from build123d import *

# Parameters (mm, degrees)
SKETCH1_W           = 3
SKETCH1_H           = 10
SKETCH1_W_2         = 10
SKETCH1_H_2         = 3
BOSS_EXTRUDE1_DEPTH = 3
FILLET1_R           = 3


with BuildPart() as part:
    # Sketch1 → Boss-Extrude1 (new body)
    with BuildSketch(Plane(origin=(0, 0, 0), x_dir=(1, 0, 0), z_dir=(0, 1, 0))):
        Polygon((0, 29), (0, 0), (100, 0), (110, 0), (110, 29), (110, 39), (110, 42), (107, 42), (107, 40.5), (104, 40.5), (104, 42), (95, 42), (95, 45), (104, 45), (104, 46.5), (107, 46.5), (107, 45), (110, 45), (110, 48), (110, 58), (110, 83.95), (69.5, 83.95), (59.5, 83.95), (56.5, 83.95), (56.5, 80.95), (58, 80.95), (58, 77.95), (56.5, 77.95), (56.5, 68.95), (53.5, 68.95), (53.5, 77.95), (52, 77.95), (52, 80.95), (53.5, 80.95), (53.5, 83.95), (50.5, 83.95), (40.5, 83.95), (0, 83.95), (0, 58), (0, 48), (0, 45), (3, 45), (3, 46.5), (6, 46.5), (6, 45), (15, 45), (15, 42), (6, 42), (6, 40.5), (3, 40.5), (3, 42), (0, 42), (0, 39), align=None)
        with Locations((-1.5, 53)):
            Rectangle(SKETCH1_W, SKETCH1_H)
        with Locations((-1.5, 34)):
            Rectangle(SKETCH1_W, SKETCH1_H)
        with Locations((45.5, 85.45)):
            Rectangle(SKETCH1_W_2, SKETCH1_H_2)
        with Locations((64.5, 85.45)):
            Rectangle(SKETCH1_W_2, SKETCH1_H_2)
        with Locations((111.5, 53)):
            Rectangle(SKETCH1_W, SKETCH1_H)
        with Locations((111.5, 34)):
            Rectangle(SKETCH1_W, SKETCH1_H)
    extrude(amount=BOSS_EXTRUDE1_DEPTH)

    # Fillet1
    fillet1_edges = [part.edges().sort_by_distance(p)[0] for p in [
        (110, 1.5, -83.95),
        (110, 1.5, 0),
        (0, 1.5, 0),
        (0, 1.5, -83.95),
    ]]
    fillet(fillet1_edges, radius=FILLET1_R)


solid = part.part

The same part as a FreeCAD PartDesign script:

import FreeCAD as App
import Part
import Sketcher

V = App.Vector
Q = App.Units.Quantity


def edges_at(feature, points):
    """Names of the edges that pass closest to the given points."""
    edges = feature.Shape.Edges
    near = lambda p: min(range(len(edges)), key=lambda i: edges[i].distToShape(Part.Vertex(*p))[0])
    return sorted({f"Edge{near(p) + 1}" for p in points})

doc = App.newDocument("Part")
body = doc.addObject("PartDesign::Body", "Body")

sketch1 = body.newObject("Sketcher::SketchObject", "Sketch")
sketch1.AttachmentSupport = (doc.getObject("XZ_Plane"), [""])
sketch1.MapMode = "FlatFace"
sketch1.addGeometry(Part.LineSegment(V(0, 0, 0), V(110, 0, 0)), False)
sketch1.addGeometry(Part.LineSegment(V(110, 0, 0), V(110, -29, 0)), False)
sketch1.addGeometry(Part.LineSegment(V(110, -29, 0), V(113, -29, 0)), False)
sketch1.addGeometry(Part.LineSegment(V(113, -29, 0), V(113, -39, 0)), False)
sketch1.addGeometry(Part.LineSegment(V(113, -39, 0), V(110, -39, 0)), False)
sketch1.addGeometry(Part.LineSegment(V(110, -39, 0), V(110, -42, 0)), False)
sketch1.addGeometry(Part.LineSegment(V(110, -42, 0), V(107, -42, 0)), False)
sketch1.addGeometry(Part.LineSegment(V(107, -42, 0), V(107, -40.5, 0)), False)
sketch1.addGeometry(Part.LineSegment(V(107, -40.5, 0), V(104, -40.5, 0)), False)
sketch1.addGeometry(Part.LineSegment(V(104, -40.5, 0), V(104, -42, 0)), False)
sketch1.addGeometry(Part.LineSegment(V(104, -42, 0), V(95, -42, 0)), False)
sketch1.addGeometry(Part.LineSegment(V(95, -42, 0), V(95, -45, 0)), False)
sketch1.addGeometry(Part.LineSegment(V(95, -45, 0), V(104, -45, 0)), False)
sketch1.addGeometry(Part.LineSegment(V(104, -45, 0), V(104, -46.5, 0)), False)
sketch1.addGeometry(Part.LineSegment(V(104, -46.5, 0), V(107, -46.5, 0)), False)
sketch1.addGeometry(Part.LineSegment(V(107, -46.5, 0), V(107, -45, 0)), False)
sketch1.addGeometry(Part.LineSegment(V(107, -45, 0), V(110, -45, 0)), False)
sketch1.addGeometry(Part.LineSegment(V(110, -45, 0), V(110, -48, 0)), False)
sketch1.addGeometry(Part.LineSegment(V(110, -48, 0), V(113, -48, 0)), False)
sketch1.addGeometry(Part.LineSegment(V(113, -48, 0), V(113, -58, 0)), False)
sketch1.addGeometry(Part.LineSegment(V(113, -58, 0), V(110, -58, 0)), False)
sketch1.addGeometry(Part.LineSegment(V(110, -58, 0), V(110, -84, 0)), False)
sketch1.addGeometry(Part.LineSegment(V(110, -84, 0), V(69.5, -84, 0)), False)
sketch1.addGeometry(Part.LineSegment(V(69.5, -84, 0), V(69.5, -87, 0)), False)
sketch1.addGeometry(Part.LineSegment(V(69.5, -87, 0), V(59.5, -87, 0)), False)
sketch1.addGeometry(Part.LineSegment(V(59.5, -87, 0), V(59.5, -84, 0)), False)
sketch1.addGeometry(Part.LineSegment(V(59.5, -84, 0), V(56.5, -84, 0)), False)
sketch1.addGeometry(Part.LineSegment(V(56.5, -84, 0), V(56.5, -81, 0)), False)
sketch1.addGeometry(Part.LineSegment(V(56.5, -81, 0), V(58, -81, 0)), False)
sketch1.addGeometry(Part.LineSegment(V(58, -81, 0), V(58, -78, 0)), False)
sketch1.addGeometry(Part.LineSegment(V(58, -78, 0), V(56.5, -78, 0)), False)
sketch1.addGeometry(Part.LineSegment(V(56.5, -78, 0), V(56.5, -69, 0)), False)
sketch1.addGeometry(Part.LineSegment(V(56.5, -69, 0), V(53.5, -69, 0)), False)
sketch1.addGeometry(Part.LineSegment(V(53.5, -69, 0), V(53.5, -78, 0)), False)
sketch1.addGeometry(Part.LineSegment(V(53.5, -78, 0), V(52, -78, 0)), False)
sketch1.addGeometry(Part.LineSegment(V(52, -78, 0), V(52, -81, 0)), False)
sketch1.addGeometry(Part.LineSegment(V(52, -81, 0), V(53.5, -81, 0)), False)
sketch1.addGeometry(Part.LineSegment(V(53.5, -81, 0), V(53.5, -84, 0)), False)
sketch1.addGeometry(Part.LineSegment(V(53.5, -84, 0), V(50.5, -84, 0)), False)
sketch1.addGeometry(Part.LineSegment(V(50.5, -84, 0), V(50.5, -87, 0)), False)
sketch1.addGeometry(Part.LineSegment(V(50.5, -87, 0), V(40.5, -87, 0)), False)
sketch1.addGeometry(Part.LineSegment(V(40.5, -87, 0), V(40.5, -84, 0)), False)
sketch1.addGeometry(Part.LineSegment(V(40.5, -84, 0), V(0, -84, 0)), False)
sketch1.addGeometry(Part.LineSegment(V(0, -84, 0), V(0, -58, 0)), False)
sketch1.addGeometry(Part.LineSegment(V(0, -58, 0), V(-3, -58, 0)), False)
sketch1.addGeometry(Part.LineSegment(V(-3, -58, 0), V(-3, -48, 0)), False)
sketch1.addGeometry(Part.LineSegment(V(-3, -48, 0), V(0, -48, 0)), False)
sketch1.addGeometry(Part.LineSegment(V(0, -48, 0), V(0, -45, 0)), False)
sketch1.addGeometry(Part.LineSegment(V(0, -45, 0), V(3, -45, 0)), False)
sketch1.addGeometry(Part.LineSegment(V(3, -45, 0), V(3, -46.5, 0)), False)
sketch1.addGeometry(Part.LineSegment(V(3, -46.5, 0), V(6, -46.5, 0)), False)
sketch1.addGeometry(Part.LineSegment(V(6, -46.5, 0), V(6, -45, 0)), False)
sketch1.addGeometry(Part.LineSegment(V(6, -45, 0), V(15, -45, 0)), False)
sketch1.addGeometry(Part.LineSegment(V(15, -45, 0), V(15, -42, 0)), False)
sketch1.addGeometry(Part.LineSegment(V(15, -42, 0), V(6, -42, 0)), False)
sketch1.addGeometry(Part.LineSegment(V(6, -42, 0), V(6, -40.5, 0)), False)
sketch1.addGeometry(Part.LineSegment(V(6, -40.5, 0), V(3, -40.5, 0)), False)
sketch1.addGeometry(Part.LineSegment(V(3, -40.5, 0), V(3, -42, 0)), False)
sketch1.addGeometry(Part.LineSegment(V(3, -42, 0), V(0, -42, 0)), False)
sketch1.addGeometry(Part.LineSegment(V(0, -42, 0), V(0, -39, 0)), False)
sketch1.addGeometry(Part.LineSegment(V(0, -39, 0), V(-3, -39, 0)), False)
sketch1.addGeometry(Part.LineSegment(V(-3, -39, 0), V(-3, -29, 0)), False)
sketch1.addGeometry(Part.LineSegment(V(-3, -29, 0), V(0, -29, 0)), False)
sketch1.addGeometry(Part.LineSegment(V(0, -29, 0), V(0, 0, 0)), False)
sketch1.addConstraint(Sketcher.Constraint("Coincident", 0, 2, 1, 1))
sketch1.addConstraint(Sketcher.Constraint("Coincident", 1, 2, 2, 1))
sketch1.addConstraint(Sketcher.Constraint("Coincident", 2, 2, 3, 1))
sketch1.addConstraint(Sketcher.Constraint("Coincident", 3, 2, 4, 1))
sketch1.addConstraint(Sketcher.Constraint("Coincident", 4, 2, 5, 1))
sketch1.addConstraint(Sketcher.Constraint("Coincident", 5, 2, 6, 1))
sketch1.addConstraint(Sketcher.Constraint("Coincident", 6, 2, 7, 1))
sketch1.addConstraint(Sketcher.Constraint("Coincident", 7, 2, 8, 1))
sketch1.addConstraint(Sketcher.Constraint("Coincident", 8, 2, 9, 1))
sketch1.addConstraint(Sketcher.Constraint("Coincident", 9, 2, 10, 1))
sketch1.addConstraint(Sketcher.Constraint("Coincident", 10, 2, 11, 1))
sketch1.addConstraint(Sketcher.Constraint("Coincident", 11, 2, 12, 1))
sketch1.addConstraint(Sketcher.Constraint("Coincident", 12, 2, 13, 1))
sketch1.addConstraint(Sketcher.Constraint("Coincident", 13, 2, 14, 1))
sketch1.addConstraint(Sketcher.Constraint("Coincident", 14, 2, 15, 1))
sketch1.addConstraint(Sketcher.Constraint("Coincident", 15, 2, 16, 1))
sketch1.addConstraint(Sketcher.Constraint("Coincident", 16, 2, 17, 1))
sketch1.addConstraint(Sketcher.Constraint("Coincident", 17, 2, 18, 1))
sketch1.addConstraint(Sketcher.Constraint("Coincident", 18, 2, 19, 1))
sketch1.addConstraint(Sketcher.Constraint("Coincident", 19, 2, 20, 1))
sketch1.addConstraint(Sketcher.Constraint("Coincident", 20, 2, 21, 1))
sketch1.addConstraint(Sketcher.Constraint("Coincident", 21, 2, 22, 1))
sketch1.addConstraint(Sketcher.Constraint("Coincident", 22, 2, 23, 1))
sketch1.addConstraint(Sketcher.Constraint("Coincident", 23, 2, 24, 1))
sketch1.addConstraint(Sketcher.Constraint("Coincident", 24, 2, 25, 1))
sketch1.addConstraint(Sketcher.Constraint("Coincident", 25, 2, 26, 1))
sketch1.addConstraint(Sketcher.Constraint("Coincident", 26, 2, 27, 1))
sketch1.addConstraint(Sketcher.Constraint("Coincident", 27, 2, 28, 1))
sketch1.addConstraint(Sketcher.Constraint("Coincident", 28, 2, 29, 1))
sketch1.addConstraint(Sketcher.Constraint("Coincident", 29, 2, 30, 1))
sketch1.addConstraint(Sketcher.Constraint("Coincident", 30, 2, 31, 1))
sketch1.addConstraint(Sketcher.Constraint("Coincident", 31, 2, 32, 1))
sketch1.addConstraint(Sketcher.Constraint("Coincident", 32, 2, 33, 1))
sketch1.addConstraint(Sketcher.Constraint("Coincident", 33, 2, 34, 1))
sketch1.addConstraint(Sketcher.Constraint("Coincident", 34, 2, 35, 1))
sketch1.addConstraint(Sketcher.Constraint("Coincident", 35, 2, 36, 1))
sketch1.addConstraint(Sketcher.Constraint("Coincident", 36, 2, 37, 1))
sketch1.addConstraint(Sketcher.Constraint("Coincident", 37, 2, 38, 1))
sketch1.addConstraint(Sketcher.Constraint("Coincident", 38, 2, 39, 1))
sketch1.addConstraint(Sketcher.Constraint("Coincident", 39, 2, 40, 1))
sketch1.addConstraint(Sketcher.Constraint("Coincident", 40, 2, 41, 1))
sketch1.addConstraint(Sketcher.Constraint("Coincident", 41, 2, 42, 1))
sketch1.addConstraint(Sketcher.Constraint("Coincident", 42, 2, 43, 1))
sketch1.addConstraint(Sketcher.Constraint("Coincident", 43, 2, 44, 1))
sketch1.addConstraint(Sketcher.Constraint("Coincident", 44, 2, 45, 1))
sketch1.addConstraint(Sketcher.Constraint("Coincident", 45, 2, 46, 1))
sketch1.addConstraint(Sketcher.Constraint("Coincident", 46, 2, 47, 1))
sketch1.addConstraint(Sketcher.Constraint("Coincident", 47, 2, 48, 1))
sketch1.addConstraint(Sketcher.Constraint("Coincident", 48, 2, 49, 1))
sketch1.addConstraint(Sketcher.Constraint("Coincident", 49, 2, 50, 1))
sketch1.addConstraint(Sketcher.Constraint("Coincident", 50, 2, 51, 1))
sketch1.addConstraint(Sketcher.Constraint("Coincident", 51, 2, 52, 1))
sketch1.addConstraint(Sketcher.Constraint("Coincident", 52, 2, 53, 1))
sketch1.addConstraint(Sketcher.Constraint("Coincident", 53, 2, 54, 1))
sketch1.addConstraint(Sketcher.Constraint("Coincident", 54, 2, 55, 1))
sketch1.addConstraint(Sketcher.Constraint("Coincident", 55, 2, 56, 1))
sketch1.addConstraint(Sketcher.Constraint("Coincident", 56, 2, 57, 1))
sketch1.addConstraint(Sketcher.Constraint("Coincident", 57, 2, 58, 1))
sketch1.addConstraint(Sketcher.Constraint("Coincident", 58, 2, 59, 1))
sketch1.addConstraint(Sketcher.Constraint("Coincident", 59, 2, 60, 1))
sketch1.addConstraint(Sketcher.Constraint("Coincident", 60, 2, 61, 1))
sketch1.addConstraint(Sketcher.Constraint("Coincident", 61, 2, 62, 1))
sketch1.addConstraint(Sketcher.Constraint("Coincident", 62, 2, 63, 1))
sketch1.addConstraint(Sketcher.Constraint("Coincident", 63, 2, 0, 1))
sketch1.addConstraint(Sketcher.Constraint("Horizontal", 0))
sketch1.addConstraint(Sketcher.Constraint("Vertical", 1))
sketch1.addConstraint(Sketcher.Constraint("Horizontal", 2))
sketch1.addConstraint(Sketcher.Constraint("Vertical", 3))
sketch1.addConstraint(Sketcher.Constraint("Horizontal", 4))
sketch1.addConstraint(Sketcher.Constraint("Vertical", 5))
sketch1.addConstraint(Sketcher.Constraint("Horizontal", 6))
sketch1.addConstraint(Sketcher.Constraint("Vertical", 7))
sketch1.addConstraint(Sketcher.Constraint("Horizontal", 8))
sketch1.addConstraint(Sketcher.Constraint("Vertical", 9))
sketch1.addConstraint(Sketcher.Constraint("Horizontal", 10))
sketch1.addConstraint(Sketcher.Constraint("Vertical", 11))
sketch1.addConstraint(Sketcher.Constraint("Horizontal", 12))
sketch1.addConstraint(Sketcher.Constraint("Vertical", 13))
sketch1.addConstraint(Sketcher.Constraint("Horizontal", 14))
sketch1.addConstraint(Sketcher.Constraint("Vertical", 15))
sketch1.addConstraint(Sketcher.Constraint("Horizontal", 16))
sketch1.addConstraint(Sketcher.Constraint("Vertical", 17))
sketch1.addConstraint(Sketcher.Constraint("Horizontal", 18))
sketch1.addConstraint(Sketcher.Constraint("Vertical", 19))
sketch1.addConstraint(Sketcher.Constraint("Horizontal", 20))
sketch1.addConstraint(Sketcher.Constraint("Vertical", 21))
sketch1.addConstraint(Sketcher.Constraint("Horizontal", 22))
sketch1.addConstraint(Sketcher.Constraint("Vertical", 23))
sketch1.addConstraint(Sketcher.Constraint("Horizontal", 24))
sketch1.addConstraint(Sketcher.Constraint("Vertical", 25))
sketch1.addConstraint(Sketcher.Constraint("Horizontal", 26))
sketch1.addConstraint(Sketcher.Constraint("Vertical", 27))
sketch1.addConstraint(Sketcher.Constraint("Horizontal", 28))
sketch1.addConstraint(Sketcher.Constraint("Vertical", 29))
sketch1.addConstraint(Sketcher.Constraint("Horizontal", 30))
sketch1.addConstraint(Sketcher.Constraint("Vertical", 31))
sketch1.addConstraint(Sketcher.Constraint("Horizontal", 32))
sketch1.addConstraint(Sketcher.Constraint("Vertical", 33))
sketch1.addConstraint(Sketcher.Constraint("Horizontal", 34))
sketch1.addConstraint(Sketcher.Constraint("Vertical", 35))
sketch1.addConstraint(Sketcher.Constraint("Horizontal", 36))
sketch1.addConstraint(Sketcher.Constraint("Vertical", 37))
sketch1.addConstraint(Sketcher.Constraint("Horizontal", 38))
sketch1.addConstraint(Sketcher.Constraint("Vertical", 39))
sketch1.addConstraint(Sketcher.Constraint("Horizontal", 40))
sketch1.addConstraint(Sketcher.Constraint("Vertical", 41))
sketch1.addConstraint(Sketcher.Constraint("Horizontal", 42))
sketch1.addConstraint(Sketcher.Constraint("Vertical", 43))
sketch1.addConstraint(Sketcher.Constraint("Horizontal", 44))
sketch1.addConstraint(Sketcher.Constraint("Vertical", 45))
sketch1.addConstraint(Sketcher.Constraint("Horizontal", 46))
sketch1.addConstraint(Sketcher.Constraint("Vertical", 47))
sketch1.addConstraint(Sketcher.Constraint("Horizontal", 48))
sketch1.addConstraint(Sketcher.Constraint("Vertical", 49))
sketch1.addConstraint(Sketcher.Constraint("Horizontal", 50))
sketch1.addConstraint(Sketcher.Constraint("Vertical", 51))
sketch1.addConstraint(Sketcher.Constraint("Horizontal", 52))
sketch1.addConstraint(Sketcher.Constraint("Vertical", 53))
sketch1.addConstraint(Sketcher.Constraint("Horizontal", 54))
sketch1.addConstraint(Sketcher.Constraint("Vertical", 55))
sketch1.addConstraint(Sketcher.Constraint("Horizontal", 56))
sketch1.addConstraint(Sketcher.Constraint("Vertical", 57))
sketch1.addConstraint(Sketcher.Constraint("Horizontal", 58))
sketch1.addConstraint(Sketcher.Constraint("Vertical", 59))
sketch1.addConstraint(Sketcher.Constraint("Horizontal", 60))
sketch1.addConstraint(Sketcher.Constraint("Vertical", 61))
sketch1.addConstraint(Sketcher.Constraint("Horizontal", 62))
sketch1.addConstraint(Sketcher.Constraint("Vertical", 63))
sketch1.addConstraint(Sketcher.Constraint("Coincident", 63, 2, -1, 1))
sketch1.addConstraint(Sketcher.Constraint("PointOnObject", 42, 2, -2))
sketch1.addConstraint(Sketcher.Constraint("PointOnObject", 46, 2, -2))
sketch1.addConstraint(Sketcher.Constraint("PointOnObject", 58, 2, -2))
sketch1.addConstraint(Sketcher.Constraint("Horizontal", 6, 2, 9, 2))
sketch1.addConstraint(Sketcher.Constraint("Horizontal", 12, 2, 15, 2))
sketch1.addConstraint(Sketcher.Constraint("Horizontal", 22, 2, 25, 2))
sketch1.addConstraint(Sketcher.Constraint("Horizontal", 30, 2, 33, 2))
sketch1.addConstraint(Sketcher.Constraint("Horizontal", 28, 2, 35, 2))
sketch1.addConstraint(Sketcher.Constraint("Horizontal", 26, 2, 37, 2))
sketch1.addConstraint(Sketcher.Constraint("Horizontal", 24, 2, 39, 2))
sketch1.addConstraint(Sketcher.Constraint("Horizontal", 38, 2, 41, 2))
sketch1.addConstraint(Sketcher.Constraint("Horizontal", 20, 2, 43, 2))
sketch1.addConstraint(Sketcher.Constraint("Horizontal", 18, 2, 45, 2))
sketch1.addConstraint(Sketcher.Constraint("Horizontal", 16, 2, 47, 2))
sketch1.addConstraint(Sketcher.Constraint("Horizontal", 14, 2, 49, 2))
sketch1.addConstraint(Sketcher.Constraint("Horizontal", 48, 2, 51, 2))
sketch1.addConstraint(Sketcher.Constraint("Horizontal", 10, 2, 53, 2))
sketch1.addConstraint(Sketcher.Constraint("Horizontal", 8, 2, 55, 2))
sketch1.addConstraint(Sketcher.Constraint("Horizontal", 54, 2, 57, 2))
sketch1.addConstraint(Sketcher.Constraint("Horizontal", 4, 2, 59, 2))
sketch1.addConstraint(Sketcher.Constraint("Horizontal", 2, 2, 61, 2))
sketch1.addConstraint(Sketcher.Constraint("Vertical", 1, 2, 4, 2))
sketch1.addConstraint(Sketcher.Constraint("Vertical", 9, 2, 12, 2))
sketch1.addConstraint(Sketcher.Constraint("Vertical", 7, 2, 14, 2))
sketch1.addConstraint(Sketcher.Constraint("Vertical", 5, 2, 16, 2))
sketch1.addConstraint(Sketcher.Constraint("Vertical", 3, 2, 18, 2))
sketch1.addConstraint(Sketcher.Constraint("Vertical", 17, 2, 20, 2))
sketch1.addConstraint(Sketcher.Constraint("Vertical", 27, 2, 30, 2))
sketch1.addConstraint(Sketcher.Constraint("Vertical", 33, 2, 36, 2))
sketch1.addConstraint(Sketcher.Constraint("Vertical", 51, 2, 54, 2))
sketch1.addConstraint(Sketcher.Constraint("Vertical", 49, 2, 56, 2))
sketch1.addConstraint(Sketcher.Constraint("Vertical", 45, 2, 60, 2))
sketch1.addConstraint(Sketcher.Constraint("Equal", 4, 6))
sketch1.addConstraint(Sketcher.Constraint("Equal", 6, 8))
sketch1.addConstraint(Sketcher.Constraint("Equal", 20, 26))
sketch1.addConstraint(Sketcher.Constraint("Equal", 26, 32))
sketch1.addConstraint(Sketcher.Constraint("Equal", 30, 34))
sketch1.addConstraint(Sketcher.Constraint("Equal", 32, 38))
sketch1.addConstraint(Sketcher.Constraint("Equal", 24, 40))
sketch1.addConstraint(Sketcher.Constraint("Equal", 22, 42))
sketch1.addConstraint(Sketcher.Constraint("Equal", 38, 44))
sketch1.addConstraint(Sketcher.Constraint("Equal", 46, 48))
sketch1.addConstraint(Sketcher.Constraint("Equal", 48, 50))
sketch1.addConstraint(Sketcher.Constraint("Equal", 12, 52))
sketch1.addConstraint(Sketcher.Constraint("Equal", 40, 3))
sketch1.addConstraint(Sketcher.Constraint("Equal", 62, 5))
sketch1.addConstraint(Sketcher.Constraint("Equal", 36, 7))
sketch1.addConstraint(Sketcher.Constraint("Equal", 5, 11))
sketch1.addConstraint(Sketcher.Constraint("Equal", 9, 13))
sketch1.addConstraint(Sketcher.Constraint("Equal", 11, 17))
sketch1.addConstraint(Sketcher.Constraint("Equal", 3, 19))
sketch1.addConstraint(Sketcher.Constraint("Equal", 17, 23))
sketch1.addConstraint(Sketcher.Constraint("Equal", 25, 27))
sketch1.addConstraint(Sketcher.Constraint("Equal", 27, 29))
sketch1.addConstraint(Sketcher.Constraint("Equal", 54, 31))
sketch1.addConstraint(Sketcher.Constraint("DistanceX", 0, 1, 0, 2, Q("110 mm")))
sketch1.addConstraint(Sketcher.Constraint("DistanceX", 2, 1, 2, 2, Q("3 mm")))
sketch1.addConstraint(Sketcher.Constraint("DistanceX", 10, 2, 10, 1, Q("9 mm")))
sketch1.addConstraint(Sketcher.Constraint("DistanceX", 24, 2, 24, 1, Q("10 mm")))
sketch1.addConstraint(Sketcher.Constraint("DistanceY", 1, 2, 1, 1, Q("29 mm")))
sketch1.addConstraint(Sketcher.Constraint("DistanceX", 28, 1, 28, 2, Q("1.5 mm")))
sketch1.addConstraint(Sketcher.Constraint("DistanceY", 21, 2, 21, 1, Q("25.95 mm")))
pad1 = body.newObject("PartDesign::Pad", "Pad")
pad1.Profile = sketch1
pad1.Length = 3
pad1.Reversed = True
doc.recompute()

fillet = body.newObject("PartDesign::Fillet", "Fillet")
fillet.Base = (pad1, edges_at(pad1, [
    (110, 1.5, -83.95),
    (110, 1.5, 0),
    (0, 1.5, 0),
    (0, 1.5, -83.95),
]))
fillet.Radius = 3

doc.recompute()
